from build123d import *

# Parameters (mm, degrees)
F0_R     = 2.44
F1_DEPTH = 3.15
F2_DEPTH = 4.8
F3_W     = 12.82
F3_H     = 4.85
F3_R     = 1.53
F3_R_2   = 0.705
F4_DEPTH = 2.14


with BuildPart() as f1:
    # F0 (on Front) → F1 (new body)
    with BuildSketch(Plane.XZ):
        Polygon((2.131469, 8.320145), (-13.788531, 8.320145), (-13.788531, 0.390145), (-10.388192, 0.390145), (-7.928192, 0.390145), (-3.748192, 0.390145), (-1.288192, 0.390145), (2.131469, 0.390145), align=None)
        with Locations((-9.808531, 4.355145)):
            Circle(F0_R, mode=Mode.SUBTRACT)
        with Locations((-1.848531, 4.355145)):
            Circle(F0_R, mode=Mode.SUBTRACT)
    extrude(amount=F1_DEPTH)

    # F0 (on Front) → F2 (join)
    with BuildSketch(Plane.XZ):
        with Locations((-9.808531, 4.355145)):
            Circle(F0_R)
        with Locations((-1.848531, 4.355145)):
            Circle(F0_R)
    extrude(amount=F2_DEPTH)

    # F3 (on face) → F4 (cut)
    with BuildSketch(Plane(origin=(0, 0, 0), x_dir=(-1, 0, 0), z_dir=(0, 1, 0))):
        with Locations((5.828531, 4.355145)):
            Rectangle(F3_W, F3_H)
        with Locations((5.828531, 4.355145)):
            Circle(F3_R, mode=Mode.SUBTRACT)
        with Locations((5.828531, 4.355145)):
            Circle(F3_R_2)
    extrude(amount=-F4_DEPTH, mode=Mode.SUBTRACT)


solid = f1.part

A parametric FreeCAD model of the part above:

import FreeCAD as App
import Part
import Sketcher
Q = App.Units.Quantity


def add_polygon(sketch, points):
    """Adds a closed chain of lines whose ends are joined by coincident constraints."""
    first, n = sketch.GeometryCount, len(points)
    for a, b in zip(points, points[1:] + points[:1]):
        sketch.addGeometry(Part.LineSegment(App.Vector(*a, 0), App.Vector(*b, 0)), False)
    for i in range(n):
        sketch.addConstraint(Sketcher.Constraint("Coincident", first + i, 2, first + (i + 1) % n, 1))

doc = App.newDocument("Part")
body = doc.addObject("PartDesign::Body", "Body")

# Sketch on XZ plane
sketch1 = doc.addObject("Sketcher::SketchObject", "Sketch")
body.addObject(sketch1)
sketch1.AttachmentSupport = (doc.XZ_Plane, [""])
sketch1.MapMode = "FlatFace"
add_polygon(sketch1, [(2.1, 8.3), (-13.8, 8.3), (-13.8, 0.4), (2.1, 0.4)])  # lines 0-3
sketch1.addGeometry(Part.Circle(App.Vector(-9.8, 4.4, 0), App.Vector(0, 0, 1), 2.4), False)  # 4
sketch1.addGeometry(Part.Circle(App.Vector(-1.8, 4.4, 0), App.Vector(0, 0, 1), 2.4), False)  # 5
sketch1.addConstraint([
    Sketcher.Constraint("Horizontal", 0),
    Sketcher.Constraint("Vertical", 1),
    Sketcher.Constraint("Horizontal", 2),
    Sketcher.Constraint("Vertical", 3),
    Sketcher.Constraint("Equal", 4, 5),
    Sketcher.Constraint("Horizontal", 4, 3, 5, 3),
    Sketcher.Constraint("Diameter", 4, Q("4.88 mm")),
    Sketcher.Constraint("DistanceX", 0, 2, 0, 1, Q("15.92 mm")),
    Sketcher.Constraint("DistanceY", 1, 2, 1, 1, Q("7.93 mm")),
    Sketcher.Constraint("DistanceX", 4, 3, 5, 3, Q("7.96 mm")),
    Sketcher.Constraint("DistanceX", 0, 2, 4, 3, Q("3.98 mm")),
    Sketcher.Constraint("DistanceY", 4, 3, 0, 2, Q("3.965 mm")),
    Sketcher.Constraint("DistanceX", 4, 3, -1, 1, Q("9.808531 mm")),
    Sketcher.Constraint("DistanceY", -1, 1, 4, 3, Q("4.355145 mm")),
])
pad1 = doc.addObject("PartDesign::Pad", "Pad")
body.addObject(pad1)
pad1.Profile = sketch1
pad1.Length = 3.15

# Sketch on XZ plane
sketch2 = doc.addObject("Sketcher::SketchObject", "Sketch001")
body.addObject(sketch2)
sketch2.AttachmentSupport = (doc.XZ_Plane, [""])
sketch2.MapMode = "FlatFace"
sketch2.addGeometry([
    Part.Circle(App.Vector(-9.8, 4.4, 0), App.Vector(0, 0, 1), 2.4),
    Part.Circle(App.Vector(-1.8, 4.4, 0), App.Vector(0, 0, 1), 2.4),
], False)
sketch2.addConstraint([
    Sketcher.Constraint("Equal", 0, 1),
    Sketcher.Constraint("Horizontal", 0, 3, 1, 3),
    Sketcher.Constraint("Diameter", 0, Q("4.88 mm")),
    Sketcher.Constraint("DistanceX", 0, 3, 1, 3, Q("7.96 mm")),
    Sketcher.Constraint("DistanceX", 0, 3, -1, 1, Q("9.808531 mm")),
    Sketcher.Constraint("DistanceY", -1, 1, 0, 3, Q("4.355145 mm")),
])
pad2 = doc.addObject("PartDesign::Pad", "Pad001")
body.addObject(pad2)
pad2.Profile = sketch2
pad2.Length = 4.8

# Sketch on XZ plane
sketch3 = doc.addObject("Sketcher::SketchObject", "Sketch002")
body.addObject(sketch3)
sketch3.AttachmentSupport = (doc.XZ_Plane, [""])
sketch3.MapMode = "FlatFace"
add_polygon(sketch3, [(0.6, 6.8), (0.6, 1.9), (-12.2, 1.9), (-12.2, 6.8)])  # lines 0-3
sketch3.addGeometry(Part.Circle(App.Vector(-5.8, 4.4, 0), App.Vector(0, 0, 1), 1.5), False)  # 4
sketch3.addGeometry(Part.Circle(App.Vector(-5.8, 4.4, 0), App.Vector(0, 0, 1), 0.7), False)  # 5
sketch3.addConstraint([
    Sketcher.Constraint("Vertical", 0),
    Sketcher.Constraint("Horizontal", 1),
    Sketcher.Constraint("Vertical", 2),
    Sketcher.Constraint("Horizontal", 3),
    Sketcher.Constraint("Coincident", 5, 3, 4, 3),
    Sketcher.Constraint("Diameter", 4, Q("3.06 mm")),
    Sketcher.Constraint("Diameter", 5, Q("1.41 mm")),
    Sketcher.Constraint("DistanceX", 1, 2, 1, 1, Q("12.82 mm")),
    Sketcher.Constraint("DistanceY", 0, 2, 0, 1, Q("4.85 mm")),
    Sketcher.Constraint("DistanceX", 4, 3, 0, 2, Q("6.41 mm")),
    Sketcher.Constraint("DistanceY", 0, 2, 4, 3, Q("2.425 mm")),
    Sketcher.Constraint("DistanceX", 4, 3, -1, 1, Q("5.828531 mm")),
    Sketcher.Constraint("DistanceY", -1, 1, 4, 3, Q("4.355145 mm")),
])
pocket1 = doc.addObject("PartDesign::Pocket", "Pocket")
body.addObject(pocket1)
pocket1.Profile = sketch3
pocket1.Length = 2.14
pocket1.Reversed = True

doc.recompute()
